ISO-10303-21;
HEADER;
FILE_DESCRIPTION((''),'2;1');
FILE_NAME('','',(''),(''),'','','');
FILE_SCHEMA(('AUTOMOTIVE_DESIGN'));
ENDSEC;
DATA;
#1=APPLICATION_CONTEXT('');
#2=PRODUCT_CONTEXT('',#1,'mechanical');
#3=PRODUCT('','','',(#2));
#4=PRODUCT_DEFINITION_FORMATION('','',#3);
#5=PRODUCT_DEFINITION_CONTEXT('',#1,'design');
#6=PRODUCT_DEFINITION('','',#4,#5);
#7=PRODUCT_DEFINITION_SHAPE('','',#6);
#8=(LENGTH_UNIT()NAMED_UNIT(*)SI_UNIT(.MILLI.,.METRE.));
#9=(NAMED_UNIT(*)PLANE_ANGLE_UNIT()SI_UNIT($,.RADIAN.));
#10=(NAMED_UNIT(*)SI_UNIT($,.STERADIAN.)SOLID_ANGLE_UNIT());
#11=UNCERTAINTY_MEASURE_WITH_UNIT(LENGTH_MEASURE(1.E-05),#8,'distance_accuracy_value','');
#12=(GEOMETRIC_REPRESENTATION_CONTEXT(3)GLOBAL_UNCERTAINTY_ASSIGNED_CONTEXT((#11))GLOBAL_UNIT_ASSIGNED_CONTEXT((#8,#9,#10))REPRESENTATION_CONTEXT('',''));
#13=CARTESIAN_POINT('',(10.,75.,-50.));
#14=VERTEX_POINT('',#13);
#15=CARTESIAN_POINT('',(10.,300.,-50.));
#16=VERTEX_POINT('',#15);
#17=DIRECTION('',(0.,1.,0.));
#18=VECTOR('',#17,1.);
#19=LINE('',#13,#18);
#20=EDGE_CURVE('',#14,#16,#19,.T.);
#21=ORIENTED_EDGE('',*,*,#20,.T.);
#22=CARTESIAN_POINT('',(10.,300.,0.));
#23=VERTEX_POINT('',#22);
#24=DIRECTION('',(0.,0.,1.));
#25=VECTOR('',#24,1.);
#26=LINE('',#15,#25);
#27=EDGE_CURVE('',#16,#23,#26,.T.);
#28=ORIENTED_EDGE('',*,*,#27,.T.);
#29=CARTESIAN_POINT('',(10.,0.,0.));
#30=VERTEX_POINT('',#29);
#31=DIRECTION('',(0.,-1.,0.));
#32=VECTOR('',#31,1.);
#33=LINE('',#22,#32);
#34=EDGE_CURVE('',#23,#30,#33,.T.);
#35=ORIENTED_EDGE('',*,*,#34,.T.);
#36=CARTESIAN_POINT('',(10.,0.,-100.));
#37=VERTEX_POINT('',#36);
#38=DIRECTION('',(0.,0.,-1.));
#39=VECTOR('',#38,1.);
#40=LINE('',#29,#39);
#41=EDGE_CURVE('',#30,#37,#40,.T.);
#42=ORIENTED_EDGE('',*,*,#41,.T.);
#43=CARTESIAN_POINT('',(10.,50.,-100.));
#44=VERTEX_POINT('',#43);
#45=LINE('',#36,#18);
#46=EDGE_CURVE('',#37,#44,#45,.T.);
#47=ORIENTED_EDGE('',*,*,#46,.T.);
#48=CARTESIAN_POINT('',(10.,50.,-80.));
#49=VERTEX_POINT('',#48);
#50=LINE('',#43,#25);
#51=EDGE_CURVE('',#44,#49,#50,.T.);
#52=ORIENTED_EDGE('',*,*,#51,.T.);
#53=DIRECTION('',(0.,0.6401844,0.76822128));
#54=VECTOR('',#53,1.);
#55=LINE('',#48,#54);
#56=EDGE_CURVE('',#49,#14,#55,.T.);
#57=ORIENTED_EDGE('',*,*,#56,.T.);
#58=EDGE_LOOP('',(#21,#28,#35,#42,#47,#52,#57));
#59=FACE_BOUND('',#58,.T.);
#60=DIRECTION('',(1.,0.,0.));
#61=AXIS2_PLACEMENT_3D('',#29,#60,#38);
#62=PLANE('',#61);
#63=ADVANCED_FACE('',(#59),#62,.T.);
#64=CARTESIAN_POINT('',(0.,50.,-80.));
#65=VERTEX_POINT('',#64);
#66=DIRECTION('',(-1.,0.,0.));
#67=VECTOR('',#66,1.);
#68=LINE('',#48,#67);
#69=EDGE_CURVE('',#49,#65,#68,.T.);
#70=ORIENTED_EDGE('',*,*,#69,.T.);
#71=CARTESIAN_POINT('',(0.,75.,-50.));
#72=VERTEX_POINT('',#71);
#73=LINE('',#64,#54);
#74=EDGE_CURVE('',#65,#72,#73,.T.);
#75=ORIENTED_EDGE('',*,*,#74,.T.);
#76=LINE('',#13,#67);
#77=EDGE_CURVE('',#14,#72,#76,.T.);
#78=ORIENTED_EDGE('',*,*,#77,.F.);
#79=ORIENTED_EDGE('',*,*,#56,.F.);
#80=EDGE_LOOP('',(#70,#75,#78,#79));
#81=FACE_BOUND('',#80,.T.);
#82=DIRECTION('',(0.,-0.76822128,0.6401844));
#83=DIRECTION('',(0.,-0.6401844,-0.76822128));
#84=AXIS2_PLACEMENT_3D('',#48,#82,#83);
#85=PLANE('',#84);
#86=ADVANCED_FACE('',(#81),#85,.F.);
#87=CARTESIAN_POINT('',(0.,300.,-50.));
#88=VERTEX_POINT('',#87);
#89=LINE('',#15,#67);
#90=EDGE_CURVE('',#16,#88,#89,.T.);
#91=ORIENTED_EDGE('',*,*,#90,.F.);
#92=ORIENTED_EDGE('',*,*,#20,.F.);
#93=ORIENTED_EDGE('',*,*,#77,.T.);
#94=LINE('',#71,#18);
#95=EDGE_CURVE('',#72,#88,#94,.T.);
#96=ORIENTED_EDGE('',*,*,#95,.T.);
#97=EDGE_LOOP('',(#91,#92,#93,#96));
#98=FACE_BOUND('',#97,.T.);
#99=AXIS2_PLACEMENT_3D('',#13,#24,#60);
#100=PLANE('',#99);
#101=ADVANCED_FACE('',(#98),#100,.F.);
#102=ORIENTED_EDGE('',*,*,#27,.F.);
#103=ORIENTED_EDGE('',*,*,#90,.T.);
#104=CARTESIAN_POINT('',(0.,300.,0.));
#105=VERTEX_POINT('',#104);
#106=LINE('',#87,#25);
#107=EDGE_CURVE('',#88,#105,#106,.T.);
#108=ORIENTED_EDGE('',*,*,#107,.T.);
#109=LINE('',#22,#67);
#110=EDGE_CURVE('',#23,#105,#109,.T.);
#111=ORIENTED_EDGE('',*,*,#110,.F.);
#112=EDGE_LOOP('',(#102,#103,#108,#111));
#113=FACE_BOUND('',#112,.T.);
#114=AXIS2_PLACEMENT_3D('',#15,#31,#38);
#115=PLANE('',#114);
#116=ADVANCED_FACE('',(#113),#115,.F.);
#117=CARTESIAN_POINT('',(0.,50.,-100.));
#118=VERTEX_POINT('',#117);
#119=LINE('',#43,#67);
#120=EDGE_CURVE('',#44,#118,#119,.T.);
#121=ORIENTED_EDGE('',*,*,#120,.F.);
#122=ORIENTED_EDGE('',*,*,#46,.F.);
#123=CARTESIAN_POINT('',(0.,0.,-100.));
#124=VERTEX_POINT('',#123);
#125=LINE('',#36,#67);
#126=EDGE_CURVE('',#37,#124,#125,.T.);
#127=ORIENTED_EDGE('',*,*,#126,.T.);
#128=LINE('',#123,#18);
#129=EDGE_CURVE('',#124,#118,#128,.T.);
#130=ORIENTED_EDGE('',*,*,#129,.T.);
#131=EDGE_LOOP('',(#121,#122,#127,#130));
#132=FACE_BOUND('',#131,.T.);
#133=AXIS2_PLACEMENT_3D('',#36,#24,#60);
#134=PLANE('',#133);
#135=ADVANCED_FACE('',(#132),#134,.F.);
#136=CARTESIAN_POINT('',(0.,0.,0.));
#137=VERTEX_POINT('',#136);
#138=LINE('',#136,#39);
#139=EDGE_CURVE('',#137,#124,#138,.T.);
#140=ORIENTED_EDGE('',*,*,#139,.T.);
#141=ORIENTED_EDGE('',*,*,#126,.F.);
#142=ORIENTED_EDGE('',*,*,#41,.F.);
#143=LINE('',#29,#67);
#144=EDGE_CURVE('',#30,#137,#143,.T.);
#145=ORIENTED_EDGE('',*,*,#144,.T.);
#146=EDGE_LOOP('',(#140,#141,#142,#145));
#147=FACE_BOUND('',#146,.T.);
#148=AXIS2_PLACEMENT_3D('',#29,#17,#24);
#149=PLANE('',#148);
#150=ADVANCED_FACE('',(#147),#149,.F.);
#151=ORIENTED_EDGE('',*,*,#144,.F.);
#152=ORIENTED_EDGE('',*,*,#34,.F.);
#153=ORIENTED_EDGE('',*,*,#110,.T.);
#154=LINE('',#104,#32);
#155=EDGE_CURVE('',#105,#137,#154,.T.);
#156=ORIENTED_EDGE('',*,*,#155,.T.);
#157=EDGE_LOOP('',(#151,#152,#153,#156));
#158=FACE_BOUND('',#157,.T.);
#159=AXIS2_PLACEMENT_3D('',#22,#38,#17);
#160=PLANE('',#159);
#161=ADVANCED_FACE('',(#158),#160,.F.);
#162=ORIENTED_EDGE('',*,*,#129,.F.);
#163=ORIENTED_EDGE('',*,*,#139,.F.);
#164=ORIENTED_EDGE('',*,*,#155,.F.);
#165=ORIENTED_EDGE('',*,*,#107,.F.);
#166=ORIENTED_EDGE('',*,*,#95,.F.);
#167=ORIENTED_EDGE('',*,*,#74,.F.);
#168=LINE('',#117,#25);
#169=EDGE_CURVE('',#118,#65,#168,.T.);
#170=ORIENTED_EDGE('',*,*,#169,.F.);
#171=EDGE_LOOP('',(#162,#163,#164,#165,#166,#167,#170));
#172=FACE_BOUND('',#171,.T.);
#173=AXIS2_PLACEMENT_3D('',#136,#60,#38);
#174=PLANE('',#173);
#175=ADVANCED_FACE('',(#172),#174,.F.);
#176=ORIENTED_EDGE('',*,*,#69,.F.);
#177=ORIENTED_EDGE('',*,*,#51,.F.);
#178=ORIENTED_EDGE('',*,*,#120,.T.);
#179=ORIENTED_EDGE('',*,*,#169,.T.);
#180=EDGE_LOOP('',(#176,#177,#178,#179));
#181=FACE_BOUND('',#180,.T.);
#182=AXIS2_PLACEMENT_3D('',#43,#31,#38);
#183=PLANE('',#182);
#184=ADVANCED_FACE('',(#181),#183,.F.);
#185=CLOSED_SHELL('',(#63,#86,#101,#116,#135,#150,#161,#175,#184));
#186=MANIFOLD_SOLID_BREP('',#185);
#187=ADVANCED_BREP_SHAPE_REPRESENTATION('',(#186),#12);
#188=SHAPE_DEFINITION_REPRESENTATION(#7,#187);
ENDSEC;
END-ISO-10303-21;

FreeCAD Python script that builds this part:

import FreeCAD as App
import Part
import Sketcher


def add_polygon(sketch, points):
    """Adds a closed chain of lines whose ends are joined by coincident constraints."""
    first, n = sketch.GeometryCount, len(points)
    for a, b in zip(points, points[1:] + points[:1]):
        sketch.addGeometry(Part.LineSegment(App.Vector(*a, 0), App.Vector(*b, 0)), False)
    for i in range(n):
        sketch.addConstraint(Sketcher.Constraint("Coincident", first + i, 2, first + (i + 1) % n, 1))

doc = App.newDocument("Part")
body = doc.addObject("PartDesign::Body", "Body")

# Sketch on YZ plane
sketch1 = body.newObject("Sketcher::SketchObject", "Sketch")
sketch1.AttachmentSupport = (doc.getObject("YZ_Plane"), [""])
sketch1.MapMode = "FlatFace"
add_polygon(sketch1, [(0, 0), (0, -100), (50, -100), (50, -80), (75, -50), (300, -50), (300, 0)])  # lines 0-6
sketch1.addConstraint([
    Sketcher.Constraint("Vertical", 0),
    Sketcher.Constraint("Horizontal", 1),
    Sketcher.Constraint("Vertical", 2),
    Sketcher.Constraint("Horizontal", 4),
    Sketcher.Constraint("Vertical", 5),
    Sketcher.Constraint("Horizontal", 6),
    Sketcher.Constraint("Coincident", 6, 2, -1, 1),
    Sketcher.Constraint("Equal", 1, 5),
    Sketcher.Constraint("DistanceX", 1, 1, 1, 2, 50.0),
    Sketcher.Constraint("DistanceX", 4, 1, 4, 2, 225.0),
    Sketcher.Constraint("DistanceX", 6, 2, 6, 1, 300.0),
    Sketcher.Constraint("DistanceY", 0, 2, 0, 1, 100.0),
    Sketcher.Constraint("DistanceY", 2, 1, 2, 2, 20.0),
])
pad1 = body.newObject("PartDesign::Pad", "Pad")
pad1.Profile = sketch1
pad1.Length = 10

doc.recompute()
